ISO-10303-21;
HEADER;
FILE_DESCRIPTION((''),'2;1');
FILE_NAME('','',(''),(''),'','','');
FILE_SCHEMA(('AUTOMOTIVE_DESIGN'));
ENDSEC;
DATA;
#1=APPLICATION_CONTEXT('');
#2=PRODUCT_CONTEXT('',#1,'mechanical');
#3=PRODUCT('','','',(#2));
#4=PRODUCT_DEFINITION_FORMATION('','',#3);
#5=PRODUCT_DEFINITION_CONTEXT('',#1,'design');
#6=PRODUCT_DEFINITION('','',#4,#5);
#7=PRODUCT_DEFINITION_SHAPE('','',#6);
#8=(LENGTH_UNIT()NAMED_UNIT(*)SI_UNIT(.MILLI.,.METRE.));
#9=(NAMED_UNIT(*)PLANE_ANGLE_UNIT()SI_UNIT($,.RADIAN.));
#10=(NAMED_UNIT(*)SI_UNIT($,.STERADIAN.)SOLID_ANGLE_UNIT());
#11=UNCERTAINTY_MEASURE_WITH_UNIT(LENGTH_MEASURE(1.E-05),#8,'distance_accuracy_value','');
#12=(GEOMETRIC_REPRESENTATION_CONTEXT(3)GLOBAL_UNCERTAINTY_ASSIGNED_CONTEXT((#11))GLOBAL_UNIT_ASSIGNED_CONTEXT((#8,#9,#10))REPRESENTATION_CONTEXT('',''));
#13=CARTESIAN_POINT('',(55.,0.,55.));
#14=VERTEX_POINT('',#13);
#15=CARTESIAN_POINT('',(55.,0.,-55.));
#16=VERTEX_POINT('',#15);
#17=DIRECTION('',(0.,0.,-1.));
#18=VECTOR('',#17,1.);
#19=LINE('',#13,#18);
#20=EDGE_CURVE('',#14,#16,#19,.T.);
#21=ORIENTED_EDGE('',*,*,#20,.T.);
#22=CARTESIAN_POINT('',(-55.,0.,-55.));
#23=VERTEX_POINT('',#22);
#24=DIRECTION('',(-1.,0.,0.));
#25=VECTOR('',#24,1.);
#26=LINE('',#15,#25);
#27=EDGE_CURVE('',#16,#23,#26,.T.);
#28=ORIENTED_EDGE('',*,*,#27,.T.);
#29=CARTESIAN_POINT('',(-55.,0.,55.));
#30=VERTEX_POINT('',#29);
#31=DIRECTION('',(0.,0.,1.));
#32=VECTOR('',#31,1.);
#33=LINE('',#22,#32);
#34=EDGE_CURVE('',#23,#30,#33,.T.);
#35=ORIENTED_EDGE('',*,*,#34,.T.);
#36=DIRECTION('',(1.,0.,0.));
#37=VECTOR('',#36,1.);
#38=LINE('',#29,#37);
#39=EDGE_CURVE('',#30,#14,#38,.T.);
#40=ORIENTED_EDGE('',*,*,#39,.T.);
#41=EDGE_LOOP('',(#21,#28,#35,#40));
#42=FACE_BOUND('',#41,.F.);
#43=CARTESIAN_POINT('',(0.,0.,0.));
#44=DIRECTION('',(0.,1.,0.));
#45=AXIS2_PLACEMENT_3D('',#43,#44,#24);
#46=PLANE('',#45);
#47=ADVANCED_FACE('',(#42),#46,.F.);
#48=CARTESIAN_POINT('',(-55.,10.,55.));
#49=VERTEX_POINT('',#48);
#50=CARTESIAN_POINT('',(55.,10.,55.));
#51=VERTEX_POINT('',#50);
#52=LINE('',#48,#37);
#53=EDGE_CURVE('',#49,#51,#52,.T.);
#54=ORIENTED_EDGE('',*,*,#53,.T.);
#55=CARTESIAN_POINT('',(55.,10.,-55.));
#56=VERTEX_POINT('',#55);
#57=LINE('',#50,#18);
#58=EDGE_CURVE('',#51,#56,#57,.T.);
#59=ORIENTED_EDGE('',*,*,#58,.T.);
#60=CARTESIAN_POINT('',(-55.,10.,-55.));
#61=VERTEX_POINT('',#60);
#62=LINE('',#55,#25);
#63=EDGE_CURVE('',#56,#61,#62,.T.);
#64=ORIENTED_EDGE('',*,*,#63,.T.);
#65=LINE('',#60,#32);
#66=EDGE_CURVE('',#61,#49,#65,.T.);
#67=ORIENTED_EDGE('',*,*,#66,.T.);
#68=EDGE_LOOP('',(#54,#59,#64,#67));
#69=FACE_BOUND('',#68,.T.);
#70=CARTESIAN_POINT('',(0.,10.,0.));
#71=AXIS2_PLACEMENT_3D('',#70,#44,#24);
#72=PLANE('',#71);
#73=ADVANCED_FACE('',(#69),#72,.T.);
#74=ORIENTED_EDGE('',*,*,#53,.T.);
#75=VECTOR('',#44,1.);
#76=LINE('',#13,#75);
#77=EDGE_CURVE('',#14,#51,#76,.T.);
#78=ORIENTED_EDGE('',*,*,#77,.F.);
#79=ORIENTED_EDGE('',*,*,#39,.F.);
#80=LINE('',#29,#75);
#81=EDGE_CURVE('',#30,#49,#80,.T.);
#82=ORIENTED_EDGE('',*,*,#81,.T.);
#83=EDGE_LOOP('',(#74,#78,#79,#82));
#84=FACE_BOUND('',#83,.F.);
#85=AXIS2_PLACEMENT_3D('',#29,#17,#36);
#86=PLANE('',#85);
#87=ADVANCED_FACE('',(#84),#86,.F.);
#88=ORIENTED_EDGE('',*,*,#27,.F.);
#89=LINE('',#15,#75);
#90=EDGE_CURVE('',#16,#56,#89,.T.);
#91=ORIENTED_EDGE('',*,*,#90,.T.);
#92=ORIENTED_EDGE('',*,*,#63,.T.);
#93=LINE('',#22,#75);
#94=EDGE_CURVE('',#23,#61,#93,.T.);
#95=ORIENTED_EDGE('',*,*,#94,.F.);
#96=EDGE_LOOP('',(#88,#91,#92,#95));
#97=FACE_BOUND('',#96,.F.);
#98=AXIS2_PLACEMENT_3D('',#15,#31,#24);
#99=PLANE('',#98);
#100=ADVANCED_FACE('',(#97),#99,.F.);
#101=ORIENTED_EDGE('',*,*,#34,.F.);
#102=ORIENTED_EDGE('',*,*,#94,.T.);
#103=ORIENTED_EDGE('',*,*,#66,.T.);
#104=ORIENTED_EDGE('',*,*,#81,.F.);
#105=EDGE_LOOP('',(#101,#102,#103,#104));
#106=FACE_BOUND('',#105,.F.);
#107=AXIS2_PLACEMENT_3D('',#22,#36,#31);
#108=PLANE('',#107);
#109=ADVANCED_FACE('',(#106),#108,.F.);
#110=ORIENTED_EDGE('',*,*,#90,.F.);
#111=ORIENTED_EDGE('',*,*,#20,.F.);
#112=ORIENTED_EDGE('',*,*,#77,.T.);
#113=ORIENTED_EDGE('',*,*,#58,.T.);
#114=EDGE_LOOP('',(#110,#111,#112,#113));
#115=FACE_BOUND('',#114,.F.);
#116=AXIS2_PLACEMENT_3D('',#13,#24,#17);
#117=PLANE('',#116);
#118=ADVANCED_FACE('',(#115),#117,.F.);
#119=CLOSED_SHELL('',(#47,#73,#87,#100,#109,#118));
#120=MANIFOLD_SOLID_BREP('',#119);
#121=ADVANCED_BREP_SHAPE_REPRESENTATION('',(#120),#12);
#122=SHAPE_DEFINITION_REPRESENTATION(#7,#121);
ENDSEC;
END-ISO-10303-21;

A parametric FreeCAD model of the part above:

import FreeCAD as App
import Part
import Sketcher
from FreeCAD import Vector

doc = App.newDocument("Part")
body = doc.addObject("PartDesign::Body", "Body")

sketch1 = body.newObject("Sketcher::SketchObject", "Sketch")
sketch1.AttachmentSupport = (doc.getObject("XZ_Plane"), [""])
sketch1.MapMode = "FlatFace"
sketch1.addGeometry([
    Part.LineSegment(Vector(55, 55, 0), Vector(55, -55, 0)),
    Part.LineSegment(Vector(55, -55, 0), Vector(-55, -55, 0)),
    Part.LineSegment(Vector(-55, -55, 0), Vector(-55, 55, 0)),
    Part.LineSegment(Vector(-55, 55, 0), Vector(55, 55, 0)),
], False)
sketch1.addConstraint([
    Sketcher.Constraint("Coincident", 0, 2, 1, 1),
    Sketcher.Constraint("Coincident", 1, 2, 2, 1),
    Sketcher.Constraint("Coincident", 2, 2, 3, 1),
    Sketcher.Constraint("Coincident", 3, 2, 0, 1),
    Sketcher.Constraint("Vertical", 0),
    Sketcher.Constraint("Horizontal", 1),
    Sketcher.Constraint("Vertical", 2),
    Sketcher.Constraint("Horizontal", 3),
    Sketcher.Constraint("Symmetric", 0, 2, 2, 2, -1, 1),
    Sketcher.Constraint("Equal", 3, 0),
    Sketcher.Constraint("DistanceX", 1, 2, 1, 1, 110.0),
])
pad1 = body.newObject("PartDesign::Pad", "Pad")
pad1.Profile = sketch1
pad1.Length = 10
pad1.Reversed = True

doc.recompute()
